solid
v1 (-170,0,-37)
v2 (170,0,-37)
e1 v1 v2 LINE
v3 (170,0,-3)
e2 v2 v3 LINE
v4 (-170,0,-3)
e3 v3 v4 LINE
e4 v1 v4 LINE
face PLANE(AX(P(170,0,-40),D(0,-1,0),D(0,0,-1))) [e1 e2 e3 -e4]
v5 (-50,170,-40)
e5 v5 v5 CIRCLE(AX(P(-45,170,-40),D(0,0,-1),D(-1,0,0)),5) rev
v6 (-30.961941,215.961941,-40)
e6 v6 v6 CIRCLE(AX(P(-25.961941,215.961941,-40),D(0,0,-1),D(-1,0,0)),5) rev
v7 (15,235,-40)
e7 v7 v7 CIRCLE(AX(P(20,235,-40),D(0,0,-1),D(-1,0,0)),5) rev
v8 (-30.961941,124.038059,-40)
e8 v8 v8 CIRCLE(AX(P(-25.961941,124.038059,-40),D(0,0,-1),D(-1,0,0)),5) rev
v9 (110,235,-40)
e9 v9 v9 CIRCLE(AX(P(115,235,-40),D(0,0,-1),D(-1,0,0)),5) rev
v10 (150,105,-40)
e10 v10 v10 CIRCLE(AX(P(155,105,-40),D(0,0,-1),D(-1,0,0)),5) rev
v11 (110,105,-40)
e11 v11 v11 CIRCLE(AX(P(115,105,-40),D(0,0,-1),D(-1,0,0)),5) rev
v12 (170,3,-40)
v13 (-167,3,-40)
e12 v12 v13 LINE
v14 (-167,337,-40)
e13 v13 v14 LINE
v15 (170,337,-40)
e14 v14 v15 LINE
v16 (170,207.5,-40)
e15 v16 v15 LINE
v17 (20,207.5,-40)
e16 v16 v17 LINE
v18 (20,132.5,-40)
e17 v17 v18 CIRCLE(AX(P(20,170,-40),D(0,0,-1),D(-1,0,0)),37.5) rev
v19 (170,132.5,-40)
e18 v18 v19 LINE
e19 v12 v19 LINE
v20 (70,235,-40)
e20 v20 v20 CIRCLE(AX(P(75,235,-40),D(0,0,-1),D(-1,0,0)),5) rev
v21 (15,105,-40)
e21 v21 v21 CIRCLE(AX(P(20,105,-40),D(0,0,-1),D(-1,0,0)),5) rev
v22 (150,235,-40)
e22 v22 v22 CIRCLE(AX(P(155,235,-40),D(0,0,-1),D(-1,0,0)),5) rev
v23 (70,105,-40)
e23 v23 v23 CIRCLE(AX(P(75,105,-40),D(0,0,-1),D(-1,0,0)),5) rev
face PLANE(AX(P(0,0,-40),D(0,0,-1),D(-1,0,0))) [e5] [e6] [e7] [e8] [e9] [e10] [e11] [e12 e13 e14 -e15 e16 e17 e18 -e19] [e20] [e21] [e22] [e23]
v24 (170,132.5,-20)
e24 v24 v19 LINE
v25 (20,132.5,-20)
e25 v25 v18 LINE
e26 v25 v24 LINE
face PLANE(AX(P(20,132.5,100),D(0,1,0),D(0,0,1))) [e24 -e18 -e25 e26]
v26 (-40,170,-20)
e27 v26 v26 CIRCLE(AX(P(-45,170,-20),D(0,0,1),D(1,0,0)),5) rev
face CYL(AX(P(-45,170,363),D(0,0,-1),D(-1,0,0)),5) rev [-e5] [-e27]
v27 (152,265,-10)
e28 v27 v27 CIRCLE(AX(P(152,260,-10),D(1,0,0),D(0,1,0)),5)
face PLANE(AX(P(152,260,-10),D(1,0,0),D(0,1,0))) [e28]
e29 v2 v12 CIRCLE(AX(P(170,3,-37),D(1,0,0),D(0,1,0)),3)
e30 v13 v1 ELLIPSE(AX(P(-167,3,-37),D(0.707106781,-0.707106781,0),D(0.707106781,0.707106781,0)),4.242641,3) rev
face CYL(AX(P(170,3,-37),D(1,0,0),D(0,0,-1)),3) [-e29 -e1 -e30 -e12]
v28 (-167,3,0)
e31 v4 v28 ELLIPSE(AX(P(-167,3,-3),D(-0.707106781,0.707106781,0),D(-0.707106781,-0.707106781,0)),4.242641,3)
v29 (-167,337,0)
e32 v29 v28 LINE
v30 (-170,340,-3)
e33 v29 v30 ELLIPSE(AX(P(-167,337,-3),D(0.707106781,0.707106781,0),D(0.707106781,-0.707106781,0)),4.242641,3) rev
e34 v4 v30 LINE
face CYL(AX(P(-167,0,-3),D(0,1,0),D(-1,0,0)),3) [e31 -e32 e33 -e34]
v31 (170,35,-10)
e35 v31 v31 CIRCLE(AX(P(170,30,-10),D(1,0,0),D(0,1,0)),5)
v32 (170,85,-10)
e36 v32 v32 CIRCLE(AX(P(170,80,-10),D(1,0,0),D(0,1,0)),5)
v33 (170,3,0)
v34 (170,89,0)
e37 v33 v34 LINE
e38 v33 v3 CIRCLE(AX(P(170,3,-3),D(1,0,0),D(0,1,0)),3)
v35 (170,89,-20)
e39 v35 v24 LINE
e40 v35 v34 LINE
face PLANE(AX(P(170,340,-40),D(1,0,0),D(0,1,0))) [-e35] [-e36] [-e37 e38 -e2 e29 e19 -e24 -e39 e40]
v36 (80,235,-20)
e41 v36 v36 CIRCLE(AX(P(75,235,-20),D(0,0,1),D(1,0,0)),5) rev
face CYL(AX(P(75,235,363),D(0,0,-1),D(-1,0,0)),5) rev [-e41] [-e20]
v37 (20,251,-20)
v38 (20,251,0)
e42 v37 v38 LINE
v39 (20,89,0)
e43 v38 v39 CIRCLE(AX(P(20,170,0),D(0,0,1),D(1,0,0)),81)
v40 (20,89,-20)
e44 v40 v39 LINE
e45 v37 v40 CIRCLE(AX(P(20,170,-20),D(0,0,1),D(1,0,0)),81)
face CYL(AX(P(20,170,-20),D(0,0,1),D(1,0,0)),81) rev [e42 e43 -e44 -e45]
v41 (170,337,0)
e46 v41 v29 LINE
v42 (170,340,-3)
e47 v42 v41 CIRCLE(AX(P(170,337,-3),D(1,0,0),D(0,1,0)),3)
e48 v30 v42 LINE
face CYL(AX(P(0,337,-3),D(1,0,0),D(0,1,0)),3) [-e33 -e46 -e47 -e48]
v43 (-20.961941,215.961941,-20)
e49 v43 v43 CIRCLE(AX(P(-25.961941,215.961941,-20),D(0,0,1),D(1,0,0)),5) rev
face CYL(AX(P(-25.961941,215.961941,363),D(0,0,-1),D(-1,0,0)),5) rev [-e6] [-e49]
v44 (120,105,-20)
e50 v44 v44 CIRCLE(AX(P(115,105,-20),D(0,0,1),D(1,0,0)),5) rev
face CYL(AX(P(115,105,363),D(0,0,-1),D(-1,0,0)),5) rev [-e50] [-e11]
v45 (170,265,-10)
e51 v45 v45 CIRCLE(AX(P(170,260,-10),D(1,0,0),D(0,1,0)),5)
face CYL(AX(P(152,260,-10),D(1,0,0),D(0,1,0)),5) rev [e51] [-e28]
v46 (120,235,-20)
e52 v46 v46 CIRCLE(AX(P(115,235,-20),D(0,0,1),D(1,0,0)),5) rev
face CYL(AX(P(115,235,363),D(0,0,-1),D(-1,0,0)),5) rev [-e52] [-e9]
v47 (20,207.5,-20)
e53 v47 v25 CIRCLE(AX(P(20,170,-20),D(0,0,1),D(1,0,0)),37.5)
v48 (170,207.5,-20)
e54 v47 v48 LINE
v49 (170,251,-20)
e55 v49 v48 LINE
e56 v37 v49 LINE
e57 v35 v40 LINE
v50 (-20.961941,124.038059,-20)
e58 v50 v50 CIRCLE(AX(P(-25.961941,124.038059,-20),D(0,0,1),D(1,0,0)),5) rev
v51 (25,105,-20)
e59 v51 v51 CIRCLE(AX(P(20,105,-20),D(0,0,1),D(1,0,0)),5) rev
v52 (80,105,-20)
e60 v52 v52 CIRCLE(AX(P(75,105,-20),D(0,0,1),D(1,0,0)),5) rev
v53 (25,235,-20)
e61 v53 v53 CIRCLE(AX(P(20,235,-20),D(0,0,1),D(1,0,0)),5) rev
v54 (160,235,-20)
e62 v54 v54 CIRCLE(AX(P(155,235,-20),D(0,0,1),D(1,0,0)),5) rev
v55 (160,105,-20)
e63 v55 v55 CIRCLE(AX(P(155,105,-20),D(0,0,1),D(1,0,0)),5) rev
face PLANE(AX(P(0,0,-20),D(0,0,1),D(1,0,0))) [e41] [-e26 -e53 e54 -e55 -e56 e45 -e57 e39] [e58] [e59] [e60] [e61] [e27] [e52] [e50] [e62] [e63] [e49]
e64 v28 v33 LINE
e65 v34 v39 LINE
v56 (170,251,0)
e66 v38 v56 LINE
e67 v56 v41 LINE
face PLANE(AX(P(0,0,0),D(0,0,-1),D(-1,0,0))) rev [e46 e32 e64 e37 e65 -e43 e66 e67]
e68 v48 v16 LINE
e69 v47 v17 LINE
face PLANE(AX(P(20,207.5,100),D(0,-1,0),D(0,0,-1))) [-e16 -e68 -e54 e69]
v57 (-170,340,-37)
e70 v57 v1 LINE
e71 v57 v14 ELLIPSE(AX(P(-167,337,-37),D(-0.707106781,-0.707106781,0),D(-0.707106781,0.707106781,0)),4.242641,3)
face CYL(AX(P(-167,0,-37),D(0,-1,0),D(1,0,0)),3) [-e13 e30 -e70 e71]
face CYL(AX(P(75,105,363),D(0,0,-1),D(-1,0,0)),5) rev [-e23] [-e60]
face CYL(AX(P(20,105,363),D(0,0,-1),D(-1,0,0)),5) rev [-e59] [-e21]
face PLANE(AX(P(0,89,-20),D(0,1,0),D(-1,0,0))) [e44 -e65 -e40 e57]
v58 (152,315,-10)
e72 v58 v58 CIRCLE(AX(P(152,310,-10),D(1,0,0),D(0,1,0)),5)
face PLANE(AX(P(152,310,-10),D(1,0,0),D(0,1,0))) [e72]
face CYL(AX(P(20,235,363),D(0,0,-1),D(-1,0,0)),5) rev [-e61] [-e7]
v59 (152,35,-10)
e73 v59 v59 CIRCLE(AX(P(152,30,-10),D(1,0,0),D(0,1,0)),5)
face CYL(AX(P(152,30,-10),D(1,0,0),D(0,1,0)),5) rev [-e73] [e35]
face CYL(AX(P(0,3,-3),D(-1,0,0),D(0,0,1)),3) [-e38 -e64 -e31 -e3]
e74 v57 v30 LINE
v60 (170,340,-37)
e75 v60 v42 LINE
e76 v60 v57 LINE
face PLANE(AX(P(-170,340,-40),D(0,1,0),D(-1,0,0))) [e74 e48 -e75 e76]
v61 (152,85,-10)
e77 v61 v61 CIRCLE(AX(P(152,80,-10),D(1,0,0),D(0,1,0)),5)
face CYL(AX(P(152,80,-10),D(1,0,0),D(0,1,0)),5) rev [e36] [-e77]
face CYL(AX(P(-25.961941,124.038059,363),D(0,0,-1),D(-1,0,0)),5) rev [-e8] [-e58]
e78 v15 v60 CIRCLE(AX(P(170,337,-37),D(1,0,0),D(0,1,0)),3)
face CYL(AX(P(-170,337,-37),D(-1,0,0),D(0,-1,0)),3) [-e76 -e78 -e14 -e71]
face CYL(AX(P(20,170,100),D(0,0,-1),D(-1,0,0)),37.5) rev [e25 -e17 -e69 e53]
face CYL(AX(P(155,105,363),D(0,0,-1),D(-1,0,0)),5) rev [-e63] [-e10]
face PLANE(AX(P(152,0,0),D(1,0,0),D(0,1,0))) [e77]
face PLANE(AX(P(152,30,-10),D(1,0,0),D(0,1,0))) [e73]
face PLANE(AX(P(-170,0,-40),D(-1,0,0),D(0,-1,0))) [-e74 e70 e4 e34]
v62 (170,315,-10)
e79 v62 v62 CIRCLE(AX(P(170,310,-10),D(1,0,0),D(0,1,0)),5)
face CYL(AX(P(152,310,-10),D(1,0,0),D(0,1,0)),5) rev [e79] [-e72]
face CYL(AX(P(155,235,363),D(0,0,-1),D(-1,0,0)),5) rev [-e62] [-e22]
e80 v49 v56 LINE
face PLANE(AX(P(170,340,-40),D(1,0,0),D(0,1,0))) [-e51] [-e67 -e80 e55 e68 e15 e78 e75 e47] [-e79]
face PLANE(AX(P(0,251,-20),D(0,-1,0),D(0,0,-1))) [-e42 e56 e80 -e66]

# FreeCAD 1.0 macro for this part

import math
import FreeCAD as App
import Part
import Sketcher

V = App.Vector
Q = App.Units.Quantity


def edges_at(feature, points):
    """Names of the edges that pass closest to the given points."""
    edges = feature.Shape.Edges
    near = lambda p: min(range(len(edges)), key=lambda i: edges[i].distToShape(Part.Vertex(*p))[0])
    return sorted({f"Edge{near(p) + 1}" for p in points})

doc = App.newDocument("Part")
body = doc.addObject("PartDesign::Body", "Body")

# Sketch on XY plane
sketch1 = body.newObject("Sketcher::SketchObject", "Sketch")
sketch1.AttachmentSupport = (doc.getObject("XY_Plane"), [""])
sketch1.MapMode = "FlatFace"
sketch1.addGeometry(Part.LineSegment(V(-170, 340, 0), V(-170, 0, 0)), False)
sketch1.addGeometry(Part.LineSegment(V(-170, 0, 0), V(170, 0, 0)), False)
sketch1.addGeometry(Part.LineSegment(V(170, 0, 0), V(170, 340, 0)), False)
sketch1.addGeometry(Part.LineSegment(V(170, 340, 0), V(-170, 340, 0)), False)
sketch1.addConstraint(Sketcher.Constraint("Coincident", 0, 2, 1, 1))
sketch1.addConstraint(Sketcher.Constraint("Coincident", 1, 2, 2, 1))
sketch1.addConstraint(Sketcher.Constraint("Coincident", 2, 2, 3, 1))
sketch1.addConstraint(Sketcher.Constraint("Coincident", 3, 2, 0, 1))
sketch1.addConstraint(Sketcher.Constraint("Vertical", 0))
sketch1.addConstraint(Sketcher.Constraint("Horizontal", 1))
sketch1.addConstraint(Sketcher.Constraint("Vertical", 2))
sketch1.addConstraint(Sketcher.Constraint("Horizontal", 3))
sketch1.addConstraint(Sketcher.Constraint("Symmetric", 0, 2, 1, 2, -1, 1))
sketch1.addConstraint(Sketcher.Constraint("Equal", 3, 0))
sketch1.addConstraint(Sketcher.Constraint("DistanceX", 1, 1, 1, 2, Q("340 mm")))
pad1 = body.newObject("PartDesign::Pad", "Pad")
pad1.Profile = sketch1
pad1.Length = 40
pad1.Reversed = True

# Sketch on XY plane
sketch2 = body.newObject("Sketcher::SketchObject", "Sketch001")
sketch2.AttachmentSupport = (doc.getObject("XY_Plane"), [""])
sketch2.MapMode = "FlatFace"
sketch2.addGeometry(Part.ArcOfCircle(Part.Circle(V(20, 170, 0), V(0, 0, 1), 38), math.radians(90), math.radians(270)), False)
sketch2.addGeometry(Part.LineSegment(V(20, 208, 0), V(170, 208, 0)), False)
sketch2.addGeometry(Part.LineSegment(V(170, 208, 0), V(170, 251, 0)), False)
sketch2.addGeometry(Part.LineSegment(V(170, 251, 0), V(20, 251, 0)), False)
sketch2.addGeometry(Part.ArcOfCircle(Part.Circle(V(20, 170, 0), V(0, 0, 1), 81), math.radians(90), math.radians(270)), False)
sketch2.addGeometry(Part.LineSegment(V(20, 89, 0), V(170, 89, 0)), False)
sketch2.addGeometry(Part.LineSegment(V(170, 89, 0), V(170, 132, 0)), False)
sketch2.addGeometry(Part.LineSegment(V(170, 132, 0), V(20, 132, 0)), False)
sketch2.addConstraint(Sketcher.Constraint("Tangent", 0, 1, 1, 1))
sketch2.addConstraint(Sketcher.Constraint("Coincident", 1, 2, 2, 1))
sketch2.addConstraint(Sketcher.Constraint("Coincident", 2, 2, 3, 1))
sketch2.addConstraint(Sketcher.Constraint("Tangent", 3, 2, 4, 1))
sketch2.addConstraint(Sketcher.Constraint("Tangent", 4, 2, 5, 1))
sketch2.addConstraint(Sketcher.Constraint("Coincident", 5, 2, 6, 1))
sketch2.addConstraint(Sketcher.Constraint("Coincident", 6, 2, 7, 1))
sketch2.addConstraint(Sketcher.Constraint("Tangent", 7, 2, 0, 2))
sketch2.addConstraint(Sketcher.Constraint("Horizontal", 1))
sketch2.addConstraint(Sketcher.Constraint("Vertical", 2))
sketch2.addConstraint(Sketcher.Constraint("Horizontal", 3))
sketch2.addConstraint(Sketcher.Constraint("Horizontal", 5))
sketch2.addConstraint(Sketcher.Constraint("Vertical", 6))
sketch2.addConstraint(Sketcher.Constraint("Horizontal", 7))
sketch2.addConstraint(Sketcher.Constraint("Coincident", 4, 3, 0, 3))
sketch2.addConstraint(Sketcher.Constraint("Vertical", 2, 2, 5, 2))
sketch2.addConstraint(Sketcher.Constraint("Radius", 4, Q("81 mm")))
sketch2.addConstraint(Sketcher.Constraint("Radius", 0, Q("37.5 mm")))
sketch2.addConstraint(Sketcher.Constraint("DistanceX", 1, 1, 1, 2, Q("150 mm")))
sketch2.addConstraint(Sketcher.Constraint("DistanceX", -1, 1, 0, 3, Q("20 mm")))
sketch2.addConstraint(Sketcher.Constraint("DistanceY", -1, 1, 0, 3, Q("170 mm")))
pocket1 = body.newObject("PartDesign::Pocket", "Pocket")
pocket1.Profile = sketch2
pocket1.Length = 20

# Sketch on XY plane
sketch3 = body.newObject("Sketcher::SketchObject", "Sketch002")
sketch3.AttachmentSupport = (doc.getObject("XY_Plane"), [""])
sketch3.MapMode = "FlatFace"
sketch3.addGeometry(Part.LineSegment(V(170, 132, 0), V(170, 208, 0)), False)
sketch3.addGeometry(Part.LineSegment(V(170, 208, 0), V(20, 208, 0)), False)
sketch3.addGeometry(Part.ArcOfCircle(Part.Circle(V(20, 170, 0), V(0, 0, 1), 38), math.radians(90), math.radians(270)), False)
sketch3.addGeometry(Part.LineSegment(V(20, 132, 0), V(170, 132, 0)), False)
sketch3.addConstraint(Sketcher.Constraint("Coincident", 0, 2, 1, 1))
sketch3.addConstraint(Sketcher.Constraint("Tangent", 1, 2, 2, 1))
sketch3.addConstraint(Sketcher.Constraint("Tangent", 2, 2, 3, 1))
sketch3.addConstraint(Sketcher.Constraint("Coincident", 3, 2, 0, 1))
sketch3.addConstraint(Sketcher.Constraint("Vertical", 0))
sketch3.addConstraint(Sketcher.Constraint("Horizontal", 1))
sketch3.addConstraint(Sketcher.Constraint("Horizontal", 3))
sketch3.addConstraint(Sketcher.Constraint("Radius", 2, Q("37.5 mm")))
sketch3.addConstraint(Sketcher.Constraint("DistanceX", 1, 2, 1, 1, Q("150 mm")))
sketch3.addConstraint(Sketcher.Constraint("DistanceX", -1, 1, 2, 3, Q("20 mm")))
sketch3.addConstraint(Sketcher.Constraint("DistanceY", -1, 1, 2, 3, Q("170 mm")))
pocket2 = body.newObject("PartDesign::Pocket", "Pocket001")
pocket2.Profile = sketch3
pocket2.Type = "ThroughAll"
pocket2.Midplane = True

# Sketch on XY plane
sketch4 = body.newObject("Sketcher::SketchObject", "Sketch003")
sketch4.AttachmentSupport = (doc.getObject("XY_Plane"), [""])
sketch4.MapMode = "FlatFace"
sketch4.addGeometry(Part.Circle(V(20, 235, 0), V(0, 0, 1), 5), False)
sketch4.addGeometry(Part.Circle(V(20, 105, 0), V(0, 0, 1), 5), False)
sketch4.addGeometry(Part.Circle(V(75, 235, 0), V(0, 0, 1), 5), False)
sketch4.addGeometry(Part.Circle(V(75, 105, 0), V(0, 0, 1), 5), False)
sketch4.addGeometry(Part.Circle(V(115, 235, 0), V(0, 0, 1), 5), False)
sketch4.addGeometry(Part.Circle(V(155, 235, 0), V(0, 0, 1), 5), False)
sketch4.addGeometry(Part.Circle(V(115, 105, 0), V(0, 0, 1), 5), False)
sketch4.addGeometry(Part.Circle(V(155, 105, 0), V(0, 0, 1), 5), False)
sketch4.addGeometry(Part.Circle(V(-26, 216, 0), V(0, 0, 1), 5), False)
sketch4.addGeometry(Part.Circle(V(-45, 170, 0), V(0, 0, 1), 5), False)
sketch4.addGeometry(Part.Circle(V(-26, 124, 0), V(0, 0, 1), 5), False)
sketch4.addConstraint(Sketcher.Constraint("Equal", 0, 1))
sketch4.addConstraint(Sketcher.Constraint("Equal", 1, 2))
sketch4.addConstraint(Sketcher.Constraint("Equal", 2, 3))
sketch4.addConstraint(Sketcher.Constraint("Equal", 3, 4))
sketch4.addConstraint(Sketcher.Constraint("Equal", 4, 5))
sketch4.addConstraint(Sketcher.Constraint("Equal", 5, 6))
sketch4.addConstraint(Sketcher.Constraint("Equal", 6, 7))
sketch4.addConstraint(Sketcher.Constraint("Equal", 7, 8))
sketch4.addConstraint(Sketcher.Constraint("Equal", 8, 9))
sketch4.addConstraint(Sketcher.Constraint("Equal", 9, 10))
sketch4.addConstraint(Sketcher.Constraint("Horizontal", 0, 3, 2, 3))
sketch4.addConstraint(Sketcher.Constraint("Horizontal", 1, 3, 3, 3))
sketch4.addConstraint(Sketcher.Constraint("Horizontal", 2, 3, 4, 3))
sketch4.addConstraint(Sketcher.Constraint("Horizontal", 4, 3, 5, 3))
sketch4.addConstraint(Sketcher.Constraint("Horizontal", 3, 3, 6, 3))
sketch4.addConstraint(Sketcher.Constraint("Horizontal", 6, 3, 7, 3))
sketch4.addConstraint(Sketcher.Constraint("Vertical", 0, 3, 1, 3))
sketch4.addConstraint(Sketcher.Constraint("Vertical", 2, 3, 3, 3))
sketch4.addConstraint(Sketcher.Constraint("Vertical", 4, 3, 6, 3))
sketch4.addConstraint(Sketcher.Constraint("Vertical", 5, 3, 7, 3))
sketch4.addConstraint(Sketcher.Constraint("Vertical", 8, 3, 10, 3))
sketch4.addConstraint(Sketcher.Constraint("Diameter", 0, Q("10 mm")))
sketch4.addConstraint(Sketcher.Constraint("DistanceX", -1, 1, 0, 3, Q("20 mm")))
sketch4.addConstraint(Sketcher.Constraint("DistanceY", -1, 1, 0, 3, Q("235 mm")))
sketch4.addConstraint(Sketcher.Constraint("DistanceY", -1, 1, 1, 3, Q("105 mm")))
sketch4.addConstraint(Sketcher.Constraint("DistanceX", -1, 1, 2, 3, Q("75 mm")))
sketch4.addConstraint(Sketcher.Constraint("DistanceX", -1, 1, 4, 3, Q("115 mm")))
sketch4.addConstraint(Sketcher.Constraint("DistanceX", -1, 1, 5, 3, Q("155 mm")))
sketch4.addConstraint(Sketcher.Constraint("DistanceX", 9, 3, -1, 1, Q("45 mm")))
sketch4.addConstraint(Sketcher.Constraint("DistanceY", -1, 1, 9, 3, Q("170 mm")))
sketch4.addConstraint(Sketcher.Constraint("DistanceX", 8, 3, -1, 1, Q("25.961941 mm")))
sketch4.addConstraint(Sketcher.Constraint("DistanceY", -1, 1, 8, 3, Q("215.961941 mm")))
sketch4.addConstraint(Sketcher.Constraint("DistanceY", -1, 1, 10, 3, Q("124.038059 mm")))
pocket3 = body.newObject("PartDesign::Pocket", "Pocket002")
pocket3.Profile = sketch4
pocket3.Type = "ThroughAll"
pocket3.Midplane = True

# Sketch on YZ plane
sketch5 = body.newObject("Sketcher::SketchObject", "Sketch004")
sketch5.AttachmentSupport = (doc.getObject("YZ_Plane"), [""])
sketch5.MapMode = "FlatFace"
sketch5.AttachmentOffset = App.Placement(V(0, 0, 170), App.Rotation())
sketch5.addGeometry(Part.Circle(V(80, -10, 0), V(0, 0, 1), 5), False)
sketch5.addGeometry(Part.Circle(V(310, -10, 0), V(0, 0, 1), 5), False)
sketch5.addGeometry(Part.Circle(V(260, -10, 0), V(0, 0, 1), 5), False)
sketch5.addGeometry(Part.Circle(V(30, -10, 0), V(0, 0, 1), 5), False)
sketch5.addConstraint(Sketcher.Constraint("Equal", 0, 1))
sketch5.addConstraint(Sketcher.Constraint("Equal", 1, 2))
sketch5.addConstraint(Sketcher.Constraint("Equal", 2, 3))
sketch5.addConstraint(Sketcher.Constraint("Horizontal", 0, 3, 1, 3))
sketch5.addConstraint(Sketcher.Constraint("Horizontal", 1, 3, 2, 3))
sketch5.addConstraint(Sketcher.Constraint("Horizontal", 2, 3, 3, 3))
sketch5.addConstraint(Sketcher.Constraint("Diameter", 0, Q("10 mm")))
sketch5.addConstraint(Sketcher.Constraint("DistanceX", -1, 1, 0, 3, Q("80 mm")))
sketch5.addConstraint(Sketcher.Constraint("DistanceY", 0, 3, -1, 1, Q("10 mm")))
sketch5.addConstraint(Sketcher.Constraint("DistanceX", -1, 1, 1, 3, Q("310 mm")))
sketch5.addConstraint(Sketcher.Constraint("DistanceX", -1, 1, 2, 3, Q("260 mm")))
sketch5.addConstraint(Sketcher.Constraint("DistanceX", -1, 1, 3, 3, Q("30 mm")))
pocket4 = body.newObject("PartDesign::Pocket", "Pocket003")
pocket4.Profile = sketch5
pocket4.Length = 18
doc.recompute()

fillet = body.newObject("PartDesign::Fillet", "Fillet")
fillet.Base = (pocket4, edges_at(pocket4, [
    (0, 340, -40),
    (-170, 170, -40),
    (0, 340, 0),
    (0, 0, 0),
    (-170, 170, 0),
    (0, 0, -40),
]))
fillet.Radius = 3

doc.recompute()
